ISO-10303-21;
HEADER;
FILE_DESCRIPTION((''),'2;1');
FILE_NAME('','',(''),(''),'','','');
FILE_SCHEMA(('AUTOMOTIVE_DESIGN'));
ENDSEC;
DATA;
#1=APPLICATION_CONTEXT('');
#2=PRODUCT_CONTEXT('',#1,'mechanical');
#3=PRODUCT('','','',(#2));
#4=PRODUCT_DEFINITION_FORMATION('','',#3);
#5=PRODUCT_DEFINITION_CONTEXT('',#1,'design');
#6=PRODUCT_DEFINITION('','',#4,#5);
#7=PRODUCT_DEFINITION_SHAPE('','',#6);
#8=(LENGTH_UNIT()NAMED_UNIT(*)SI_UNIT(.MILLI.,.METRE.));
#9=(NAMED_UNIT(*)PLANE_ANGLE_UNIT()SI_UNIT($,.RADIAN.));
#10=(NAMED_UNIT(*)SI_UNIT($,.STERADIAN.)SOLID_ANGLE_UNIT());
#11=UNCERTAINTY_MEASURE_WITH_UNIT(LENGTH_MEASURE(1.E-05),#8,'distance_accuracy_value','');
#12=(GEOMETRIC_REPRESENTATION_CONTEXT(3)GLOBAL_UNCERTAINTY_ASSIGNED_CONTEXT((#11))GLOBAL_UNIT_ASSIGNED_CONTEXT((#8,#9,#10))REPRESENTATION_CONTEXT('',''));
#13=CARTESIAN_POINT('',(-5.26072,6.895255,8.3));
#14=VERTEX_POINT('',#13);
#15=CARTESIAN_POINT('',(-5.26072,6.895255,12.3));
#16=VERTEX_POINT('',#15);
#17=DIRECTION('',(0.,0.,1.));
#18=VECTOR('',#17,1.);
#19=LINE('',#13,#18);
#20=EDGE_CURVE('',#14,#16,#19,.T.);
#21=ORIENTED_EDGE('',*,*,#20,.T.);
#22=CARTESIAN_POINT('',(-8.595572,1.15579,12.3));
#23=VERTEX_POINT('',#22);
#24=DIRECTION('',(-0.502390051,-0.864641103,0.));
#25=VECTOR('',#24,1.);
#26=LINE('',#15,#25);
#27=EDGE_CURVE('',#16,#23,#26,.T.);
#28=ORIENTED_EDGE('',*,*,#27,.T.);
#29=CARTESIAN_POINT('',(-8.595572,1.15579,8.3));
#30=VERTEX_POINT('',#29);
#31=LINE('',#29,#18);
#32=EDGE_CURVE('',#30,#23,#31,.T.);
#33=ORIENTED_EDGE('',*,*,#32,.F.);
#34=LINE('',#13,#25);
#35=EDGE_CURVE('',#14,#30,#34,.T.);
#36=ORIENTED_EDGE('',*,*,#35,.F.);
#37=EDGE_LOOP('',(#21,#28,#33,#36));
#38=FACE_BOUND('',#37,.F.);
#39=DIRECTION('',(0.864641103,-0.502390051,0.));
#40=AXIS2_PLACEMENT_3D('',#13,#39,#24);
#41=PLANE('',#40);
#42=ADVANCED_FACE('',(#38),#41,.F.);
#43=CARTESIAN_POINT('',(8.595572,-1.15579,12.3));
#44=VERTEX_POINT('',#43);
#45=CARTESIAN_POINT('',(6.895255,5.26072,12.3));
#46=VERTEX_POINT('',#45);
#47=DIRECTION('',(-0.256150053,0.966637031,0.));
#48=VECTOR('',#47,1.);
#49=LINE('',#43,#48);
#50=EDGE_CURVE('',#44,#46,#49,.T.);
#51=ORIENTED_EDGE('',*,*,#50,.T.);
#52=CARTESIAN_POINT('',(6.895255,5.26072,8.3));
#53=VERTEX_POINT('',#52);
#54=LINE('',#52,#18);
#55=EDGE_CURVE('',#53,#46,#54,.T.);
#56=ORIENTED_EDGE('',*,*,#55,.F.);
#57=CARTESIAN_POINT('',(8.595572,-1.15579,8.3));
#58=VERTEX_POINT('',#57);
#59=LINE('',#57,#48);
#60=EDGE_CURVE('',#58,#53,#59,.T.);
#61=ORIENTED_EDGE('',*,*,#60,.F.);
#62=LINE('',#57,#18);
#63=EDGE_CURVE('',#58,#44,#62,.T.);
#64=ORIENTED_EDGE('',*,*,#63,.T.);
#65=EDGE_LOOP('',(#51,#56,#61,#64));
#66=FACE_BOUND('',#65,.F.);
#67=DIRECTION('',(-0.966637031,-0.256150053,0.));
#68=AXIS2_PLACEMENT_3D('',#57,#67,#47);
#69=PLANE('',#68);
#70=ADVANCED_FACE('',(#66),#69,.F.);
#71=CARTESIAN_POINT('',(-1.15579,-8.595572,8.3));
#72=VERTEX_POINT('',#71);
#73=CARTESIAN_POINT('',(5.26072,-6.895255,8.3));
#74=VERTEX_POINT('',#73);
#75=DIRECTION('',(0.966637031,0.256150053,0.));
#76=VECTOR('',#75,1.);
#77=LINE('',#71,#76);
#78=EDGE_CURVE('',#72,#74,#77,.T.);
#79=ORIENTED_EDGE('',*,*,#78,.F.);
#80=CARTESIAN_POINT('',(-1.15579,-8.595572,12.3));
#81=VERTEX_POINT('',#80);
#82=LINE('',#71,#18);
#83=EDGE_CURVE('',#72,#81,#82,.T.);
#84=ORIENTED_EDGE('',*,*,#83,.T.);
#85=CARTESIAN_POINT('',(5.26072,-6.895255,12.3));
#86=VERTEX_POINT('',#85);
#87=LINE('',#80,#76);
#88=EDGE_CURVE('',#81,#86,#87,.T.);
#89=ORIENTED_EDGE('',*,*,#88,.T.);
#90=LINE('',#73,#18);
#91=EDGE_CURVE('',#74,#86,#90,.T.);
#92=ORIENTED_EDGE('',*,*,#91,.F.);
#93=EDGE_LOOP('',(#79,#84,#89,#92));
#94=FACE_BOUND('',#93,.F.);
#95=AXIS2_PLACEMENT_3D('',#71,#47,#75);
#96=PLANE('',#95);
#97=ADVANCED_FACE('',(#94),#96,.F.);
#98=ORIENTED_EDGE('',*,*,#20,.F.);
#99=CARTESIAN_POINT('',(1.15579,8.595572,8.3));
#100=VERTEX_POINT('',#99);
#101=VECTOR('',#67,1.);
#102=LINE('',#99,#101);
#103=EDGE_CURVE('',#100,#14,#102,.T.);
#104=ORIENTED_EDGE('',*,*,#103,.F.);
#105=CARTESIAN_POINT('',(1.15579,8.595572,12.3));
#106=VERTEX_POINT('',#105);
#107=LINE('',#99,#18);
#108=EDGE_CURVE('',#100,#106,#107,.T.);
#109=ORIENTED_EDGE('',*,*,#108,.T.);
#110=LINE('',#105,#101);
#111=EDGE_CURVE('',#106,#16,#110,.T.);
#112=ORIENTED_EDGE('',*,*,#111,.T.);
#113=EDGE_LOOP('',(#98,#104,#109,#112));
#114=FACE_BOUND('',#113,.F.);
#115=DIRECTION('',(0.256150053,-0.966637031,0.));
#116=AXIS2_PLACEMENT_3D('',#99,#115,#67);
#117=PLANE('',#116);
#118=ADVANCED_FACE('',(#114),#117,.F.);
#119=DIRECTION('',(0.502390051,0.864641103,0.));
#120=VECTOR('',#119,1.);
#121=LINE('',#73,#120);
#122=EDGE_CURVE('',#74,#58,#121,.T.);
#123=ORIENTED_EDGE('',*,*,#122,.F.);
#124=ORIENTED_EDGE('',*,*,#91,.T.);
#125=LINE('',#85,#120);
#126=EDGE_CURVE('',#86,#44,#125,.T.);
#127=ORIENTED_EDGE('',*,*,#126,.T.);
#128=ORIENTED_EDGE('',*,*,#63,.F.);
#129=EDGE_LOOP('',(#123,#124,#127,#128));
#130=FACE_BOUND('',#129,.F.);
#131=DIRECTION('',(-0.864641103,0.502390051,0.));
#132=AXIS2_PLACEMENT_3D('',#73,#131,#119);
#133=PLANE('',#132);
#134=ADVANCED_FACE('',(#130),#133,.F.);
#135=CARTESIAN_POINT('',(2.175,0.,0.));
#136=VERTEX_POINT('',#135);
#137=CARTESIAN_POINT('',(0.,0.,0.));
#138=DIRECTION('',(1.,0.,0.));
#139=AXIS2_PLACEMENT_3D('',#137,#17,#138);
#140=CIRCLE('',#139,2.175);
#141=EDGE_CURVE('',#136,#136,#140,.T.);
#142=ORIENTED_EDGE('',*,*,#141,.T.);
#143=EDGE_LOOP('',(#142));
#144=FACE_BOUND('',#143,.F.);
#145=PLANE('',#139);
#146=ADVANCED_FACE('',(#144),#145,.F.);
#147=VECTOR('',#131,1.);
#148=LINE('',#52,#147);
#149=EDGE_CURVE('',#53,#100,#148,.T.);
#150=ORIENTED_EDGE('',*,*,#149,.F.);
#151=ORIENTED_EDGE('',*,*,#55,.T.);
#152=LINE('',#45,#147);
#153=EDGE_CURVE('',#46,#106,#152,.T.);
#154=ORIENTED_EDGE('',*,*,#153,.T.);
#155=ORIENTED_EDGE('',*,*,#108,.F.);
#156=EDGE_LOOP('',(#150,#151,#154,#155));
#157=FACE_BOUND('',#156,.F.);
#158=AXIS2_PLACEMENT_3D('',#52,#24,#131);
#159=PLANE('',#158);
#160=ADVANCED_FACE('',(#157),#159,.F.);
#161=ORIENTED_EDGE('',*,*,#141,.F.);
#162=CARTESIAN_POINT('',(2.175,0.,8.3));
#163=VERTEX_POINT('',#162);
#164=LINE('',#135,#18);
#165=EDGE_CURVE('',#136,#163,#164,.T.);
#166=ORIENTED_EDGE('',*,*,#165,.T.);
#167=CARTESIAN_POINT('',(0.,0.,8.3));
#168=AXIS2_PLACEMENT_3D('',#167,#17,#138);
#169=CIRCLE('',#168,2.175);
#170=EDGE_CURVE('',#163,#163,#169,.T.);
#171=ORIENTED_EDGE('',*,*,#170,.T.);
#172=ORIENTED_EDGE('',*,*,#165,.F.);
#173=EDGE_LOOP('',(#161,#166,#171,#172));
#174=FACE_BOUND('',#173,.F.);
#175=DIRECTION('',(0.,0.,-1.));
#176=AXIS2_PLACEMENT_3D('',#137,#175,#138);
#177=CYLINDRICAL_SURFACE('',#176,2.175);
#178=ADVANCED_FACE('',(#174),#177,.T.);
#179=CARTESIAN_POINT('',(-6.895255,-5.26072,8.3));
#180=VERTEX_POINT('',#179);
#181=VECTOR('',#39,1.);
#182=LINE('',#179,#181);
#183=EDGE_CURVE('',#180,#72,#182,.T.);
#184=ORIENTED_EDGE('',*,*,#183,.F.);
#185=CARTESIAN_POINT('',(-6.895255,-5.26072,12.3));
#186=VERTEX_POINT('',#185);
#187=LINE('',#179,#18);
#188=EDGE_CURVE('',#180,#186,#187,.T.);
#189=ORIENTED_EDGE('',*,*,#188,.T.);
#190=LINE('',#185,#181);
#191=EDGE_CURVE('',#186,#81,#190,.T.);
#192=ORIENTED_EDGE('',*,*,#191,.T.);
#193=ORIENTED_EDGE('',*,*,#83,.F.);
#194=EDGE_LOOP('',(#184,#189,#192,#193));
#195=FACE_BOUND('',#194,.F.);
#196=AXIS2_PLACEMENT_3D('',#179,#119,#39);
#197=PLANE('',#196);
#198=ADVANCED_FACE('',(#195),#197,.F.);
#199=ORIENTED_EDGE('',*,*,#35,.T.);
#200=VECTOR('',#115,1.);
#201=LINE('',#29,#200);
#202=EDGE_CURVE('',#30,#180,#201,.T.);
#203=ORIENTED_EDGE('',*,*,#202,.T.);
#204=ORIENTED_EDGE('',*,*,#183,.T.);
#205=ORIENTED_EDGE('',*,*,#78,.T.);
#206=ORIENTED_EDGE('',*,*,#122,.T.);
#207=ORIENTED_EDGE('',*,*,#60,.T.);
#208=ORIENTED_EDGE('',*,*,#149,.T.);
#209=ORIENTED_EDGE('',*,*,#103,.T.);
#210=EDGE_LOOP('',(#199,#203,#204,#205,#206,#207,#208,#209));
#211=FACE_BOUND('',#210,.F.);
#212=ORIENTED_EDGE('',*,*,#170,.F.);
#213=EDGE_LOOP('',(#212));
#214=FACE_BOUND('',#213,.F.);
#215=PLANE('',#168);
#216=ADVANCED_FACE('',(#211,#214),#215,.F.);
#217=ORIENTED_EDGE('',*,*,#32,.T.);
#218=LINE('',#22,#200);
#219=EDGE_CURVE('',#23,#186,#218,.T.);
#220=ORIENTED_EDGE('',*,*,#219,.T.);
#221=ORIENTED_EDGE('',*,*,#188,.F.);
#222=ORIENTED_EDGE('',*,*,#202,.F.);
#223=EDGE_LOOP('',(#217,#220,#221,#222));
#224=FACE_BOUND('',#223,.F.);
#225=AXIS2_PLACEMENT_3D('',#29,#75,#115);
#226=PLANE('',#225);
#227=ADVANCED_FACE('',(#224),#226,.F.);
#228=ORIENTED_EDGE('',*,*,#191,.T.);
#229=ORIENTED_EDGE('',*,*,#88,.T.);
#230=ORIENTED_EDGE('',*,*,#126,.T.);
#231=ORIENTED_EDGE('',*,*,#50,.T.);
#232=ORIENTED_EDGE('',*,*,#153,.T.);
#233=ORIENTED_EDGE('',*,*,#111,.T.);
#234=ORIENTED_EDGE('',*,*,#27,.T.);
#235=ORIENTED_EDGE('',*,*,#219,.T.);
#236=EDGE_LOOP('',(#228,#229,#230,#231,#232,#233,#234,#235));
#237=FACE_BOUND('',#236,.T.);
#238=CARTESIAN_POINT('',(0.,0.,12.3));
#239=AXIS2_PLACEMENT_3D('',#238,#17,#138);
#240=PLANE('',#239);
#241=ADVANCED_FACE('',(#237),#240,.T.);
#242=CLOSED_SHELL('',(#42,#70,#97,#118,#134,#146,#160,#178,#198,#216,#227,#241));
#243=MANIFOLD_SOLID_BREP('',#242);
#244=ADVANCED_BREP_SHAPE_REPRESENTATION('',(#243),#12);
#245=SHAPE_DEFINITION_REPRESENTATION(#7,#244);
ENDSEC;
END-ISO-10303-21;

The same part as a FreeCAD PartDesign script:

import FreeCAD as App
import Part
import Sketcher
from FreeCAD import Vector

doc = App.newDocument("Part")
body = doc.addObject("PartDesign::Body", "Body")

sketch1 = body.newObject("Sketcher::SketchObject", "Sketch")
sketch1.AttachmentSupport = (doc.getObject("XY_Plane"), [""])
sketch1.MapMode = "FlatFace"
sketch1.addGeometry(Part.Circle(Vector(0, 0, 0), Vector(0, 0, 1), 2.2), False)
sketch1.addConstraint([
    Sketcher.Constraint("Coincident", 0, 3, -1, 1),
    Sketcher.Constraint("Diameter", 0, 4.35),
])
pad1 = body.newObject("PartDesign::Pad", "Pad")
pad1.Profile = sketch1
pad1.Length = 8.3

sketch2 = body.newObject("Sketcher::SketchObject", "Sketch001")
sketch2.AttachmentSupport = (doc.getObject("XY_Plane"), [""])
sketch2.MapMode = "FlatFace"
sketch2.AttachmentOffset = App.Placement(Vector(0, 0, 8.3), App.Rotation())
sketch2.addGeometry([
    Part.LineSegment(Vector(5, -7, 0), Vector(9, -1, 0)),
    Part.LineSegment(Vector(9, -1, 0), Vector(7, 5, 0)),
    Part.LineSegment(Vector(7, 5, 0), Vector(1, 9, 0)),
    Part.LineSegment(Vector(1, 9, 0), Vector(-5, 7, 0)),
    Part.LineSegment(Vector(-5, 7, 0), Vector(-9, 1, 0)),
    Part.LineSegment(Vector(-9, 1, 0), Vector(-7, -5, 0)),
    Part.LineSegment(Vector(-7, -5, 0), Vector(-1, -9, 0)),
    Part.LineSegment(Vector(-1, -9, 0), Vector(5, -7, 0)),
], False)
sketch2.addConstraint([
    Sketcher.Constraint("Coincident", 0, 2, 1, 1),
    Sketcher.Constraint("Coincident", 1, 2, 2, 1),
    Sketcher.Constraint("Coincident", 2, 2, 3, 1),
    Sketcher.Constraint("Coincident", 3, 2, 4, 1),
    Sketcher.Constraint("Coincident", 4, 2, 5, 1),
    Sketcher.Constraint("Coincident", 5, 2, 6, 1),
    Sketcher.Constraint("Coincident", 6, 2, 7, 1),
    Sketcher.Constraint("Coincident", 7, 2, 0, 1),
    Sketcher.Constraint("Symmetric", 0, 2, 4, 2, -1, 1),
    Sketcher.Constraint("Symmetric", 1, 2, 5, 2, -1, 1),
    Sketcher.Constraint("Symmetric", 2, 2, 6, 2, -1, 1),
    Sketcher.Constraint("Symmetric", 3, 2, 7, 2, -1, 1),
    Sketcher.Constraint("Perpendicular", 0, 2),
    Sketcher.Constraint("Perpendicular", 1, 3),
    Sketcher.Constraint("Equal", 0, 1),
    Sketcher.Constraint("Equal", 1, 2),
    Sketcher.Constraint("Equal", 2, 3),
    Sketcher.Constraint("DistanceY", 0, 2, -1, 1, 1.15579),
    Sketcher.Constraint("DistanceY", -1, 1, 1, 2, 5.26072),
    Sketcher.Constraint("DistanceX", 5, 2, 1, 2, 13.79051),
])
pad2 = body.newObject("PartDesign::Pad", "Pad001")
pad2.Profile = sketch2
pad2.Length = 4

doc.recompute()
